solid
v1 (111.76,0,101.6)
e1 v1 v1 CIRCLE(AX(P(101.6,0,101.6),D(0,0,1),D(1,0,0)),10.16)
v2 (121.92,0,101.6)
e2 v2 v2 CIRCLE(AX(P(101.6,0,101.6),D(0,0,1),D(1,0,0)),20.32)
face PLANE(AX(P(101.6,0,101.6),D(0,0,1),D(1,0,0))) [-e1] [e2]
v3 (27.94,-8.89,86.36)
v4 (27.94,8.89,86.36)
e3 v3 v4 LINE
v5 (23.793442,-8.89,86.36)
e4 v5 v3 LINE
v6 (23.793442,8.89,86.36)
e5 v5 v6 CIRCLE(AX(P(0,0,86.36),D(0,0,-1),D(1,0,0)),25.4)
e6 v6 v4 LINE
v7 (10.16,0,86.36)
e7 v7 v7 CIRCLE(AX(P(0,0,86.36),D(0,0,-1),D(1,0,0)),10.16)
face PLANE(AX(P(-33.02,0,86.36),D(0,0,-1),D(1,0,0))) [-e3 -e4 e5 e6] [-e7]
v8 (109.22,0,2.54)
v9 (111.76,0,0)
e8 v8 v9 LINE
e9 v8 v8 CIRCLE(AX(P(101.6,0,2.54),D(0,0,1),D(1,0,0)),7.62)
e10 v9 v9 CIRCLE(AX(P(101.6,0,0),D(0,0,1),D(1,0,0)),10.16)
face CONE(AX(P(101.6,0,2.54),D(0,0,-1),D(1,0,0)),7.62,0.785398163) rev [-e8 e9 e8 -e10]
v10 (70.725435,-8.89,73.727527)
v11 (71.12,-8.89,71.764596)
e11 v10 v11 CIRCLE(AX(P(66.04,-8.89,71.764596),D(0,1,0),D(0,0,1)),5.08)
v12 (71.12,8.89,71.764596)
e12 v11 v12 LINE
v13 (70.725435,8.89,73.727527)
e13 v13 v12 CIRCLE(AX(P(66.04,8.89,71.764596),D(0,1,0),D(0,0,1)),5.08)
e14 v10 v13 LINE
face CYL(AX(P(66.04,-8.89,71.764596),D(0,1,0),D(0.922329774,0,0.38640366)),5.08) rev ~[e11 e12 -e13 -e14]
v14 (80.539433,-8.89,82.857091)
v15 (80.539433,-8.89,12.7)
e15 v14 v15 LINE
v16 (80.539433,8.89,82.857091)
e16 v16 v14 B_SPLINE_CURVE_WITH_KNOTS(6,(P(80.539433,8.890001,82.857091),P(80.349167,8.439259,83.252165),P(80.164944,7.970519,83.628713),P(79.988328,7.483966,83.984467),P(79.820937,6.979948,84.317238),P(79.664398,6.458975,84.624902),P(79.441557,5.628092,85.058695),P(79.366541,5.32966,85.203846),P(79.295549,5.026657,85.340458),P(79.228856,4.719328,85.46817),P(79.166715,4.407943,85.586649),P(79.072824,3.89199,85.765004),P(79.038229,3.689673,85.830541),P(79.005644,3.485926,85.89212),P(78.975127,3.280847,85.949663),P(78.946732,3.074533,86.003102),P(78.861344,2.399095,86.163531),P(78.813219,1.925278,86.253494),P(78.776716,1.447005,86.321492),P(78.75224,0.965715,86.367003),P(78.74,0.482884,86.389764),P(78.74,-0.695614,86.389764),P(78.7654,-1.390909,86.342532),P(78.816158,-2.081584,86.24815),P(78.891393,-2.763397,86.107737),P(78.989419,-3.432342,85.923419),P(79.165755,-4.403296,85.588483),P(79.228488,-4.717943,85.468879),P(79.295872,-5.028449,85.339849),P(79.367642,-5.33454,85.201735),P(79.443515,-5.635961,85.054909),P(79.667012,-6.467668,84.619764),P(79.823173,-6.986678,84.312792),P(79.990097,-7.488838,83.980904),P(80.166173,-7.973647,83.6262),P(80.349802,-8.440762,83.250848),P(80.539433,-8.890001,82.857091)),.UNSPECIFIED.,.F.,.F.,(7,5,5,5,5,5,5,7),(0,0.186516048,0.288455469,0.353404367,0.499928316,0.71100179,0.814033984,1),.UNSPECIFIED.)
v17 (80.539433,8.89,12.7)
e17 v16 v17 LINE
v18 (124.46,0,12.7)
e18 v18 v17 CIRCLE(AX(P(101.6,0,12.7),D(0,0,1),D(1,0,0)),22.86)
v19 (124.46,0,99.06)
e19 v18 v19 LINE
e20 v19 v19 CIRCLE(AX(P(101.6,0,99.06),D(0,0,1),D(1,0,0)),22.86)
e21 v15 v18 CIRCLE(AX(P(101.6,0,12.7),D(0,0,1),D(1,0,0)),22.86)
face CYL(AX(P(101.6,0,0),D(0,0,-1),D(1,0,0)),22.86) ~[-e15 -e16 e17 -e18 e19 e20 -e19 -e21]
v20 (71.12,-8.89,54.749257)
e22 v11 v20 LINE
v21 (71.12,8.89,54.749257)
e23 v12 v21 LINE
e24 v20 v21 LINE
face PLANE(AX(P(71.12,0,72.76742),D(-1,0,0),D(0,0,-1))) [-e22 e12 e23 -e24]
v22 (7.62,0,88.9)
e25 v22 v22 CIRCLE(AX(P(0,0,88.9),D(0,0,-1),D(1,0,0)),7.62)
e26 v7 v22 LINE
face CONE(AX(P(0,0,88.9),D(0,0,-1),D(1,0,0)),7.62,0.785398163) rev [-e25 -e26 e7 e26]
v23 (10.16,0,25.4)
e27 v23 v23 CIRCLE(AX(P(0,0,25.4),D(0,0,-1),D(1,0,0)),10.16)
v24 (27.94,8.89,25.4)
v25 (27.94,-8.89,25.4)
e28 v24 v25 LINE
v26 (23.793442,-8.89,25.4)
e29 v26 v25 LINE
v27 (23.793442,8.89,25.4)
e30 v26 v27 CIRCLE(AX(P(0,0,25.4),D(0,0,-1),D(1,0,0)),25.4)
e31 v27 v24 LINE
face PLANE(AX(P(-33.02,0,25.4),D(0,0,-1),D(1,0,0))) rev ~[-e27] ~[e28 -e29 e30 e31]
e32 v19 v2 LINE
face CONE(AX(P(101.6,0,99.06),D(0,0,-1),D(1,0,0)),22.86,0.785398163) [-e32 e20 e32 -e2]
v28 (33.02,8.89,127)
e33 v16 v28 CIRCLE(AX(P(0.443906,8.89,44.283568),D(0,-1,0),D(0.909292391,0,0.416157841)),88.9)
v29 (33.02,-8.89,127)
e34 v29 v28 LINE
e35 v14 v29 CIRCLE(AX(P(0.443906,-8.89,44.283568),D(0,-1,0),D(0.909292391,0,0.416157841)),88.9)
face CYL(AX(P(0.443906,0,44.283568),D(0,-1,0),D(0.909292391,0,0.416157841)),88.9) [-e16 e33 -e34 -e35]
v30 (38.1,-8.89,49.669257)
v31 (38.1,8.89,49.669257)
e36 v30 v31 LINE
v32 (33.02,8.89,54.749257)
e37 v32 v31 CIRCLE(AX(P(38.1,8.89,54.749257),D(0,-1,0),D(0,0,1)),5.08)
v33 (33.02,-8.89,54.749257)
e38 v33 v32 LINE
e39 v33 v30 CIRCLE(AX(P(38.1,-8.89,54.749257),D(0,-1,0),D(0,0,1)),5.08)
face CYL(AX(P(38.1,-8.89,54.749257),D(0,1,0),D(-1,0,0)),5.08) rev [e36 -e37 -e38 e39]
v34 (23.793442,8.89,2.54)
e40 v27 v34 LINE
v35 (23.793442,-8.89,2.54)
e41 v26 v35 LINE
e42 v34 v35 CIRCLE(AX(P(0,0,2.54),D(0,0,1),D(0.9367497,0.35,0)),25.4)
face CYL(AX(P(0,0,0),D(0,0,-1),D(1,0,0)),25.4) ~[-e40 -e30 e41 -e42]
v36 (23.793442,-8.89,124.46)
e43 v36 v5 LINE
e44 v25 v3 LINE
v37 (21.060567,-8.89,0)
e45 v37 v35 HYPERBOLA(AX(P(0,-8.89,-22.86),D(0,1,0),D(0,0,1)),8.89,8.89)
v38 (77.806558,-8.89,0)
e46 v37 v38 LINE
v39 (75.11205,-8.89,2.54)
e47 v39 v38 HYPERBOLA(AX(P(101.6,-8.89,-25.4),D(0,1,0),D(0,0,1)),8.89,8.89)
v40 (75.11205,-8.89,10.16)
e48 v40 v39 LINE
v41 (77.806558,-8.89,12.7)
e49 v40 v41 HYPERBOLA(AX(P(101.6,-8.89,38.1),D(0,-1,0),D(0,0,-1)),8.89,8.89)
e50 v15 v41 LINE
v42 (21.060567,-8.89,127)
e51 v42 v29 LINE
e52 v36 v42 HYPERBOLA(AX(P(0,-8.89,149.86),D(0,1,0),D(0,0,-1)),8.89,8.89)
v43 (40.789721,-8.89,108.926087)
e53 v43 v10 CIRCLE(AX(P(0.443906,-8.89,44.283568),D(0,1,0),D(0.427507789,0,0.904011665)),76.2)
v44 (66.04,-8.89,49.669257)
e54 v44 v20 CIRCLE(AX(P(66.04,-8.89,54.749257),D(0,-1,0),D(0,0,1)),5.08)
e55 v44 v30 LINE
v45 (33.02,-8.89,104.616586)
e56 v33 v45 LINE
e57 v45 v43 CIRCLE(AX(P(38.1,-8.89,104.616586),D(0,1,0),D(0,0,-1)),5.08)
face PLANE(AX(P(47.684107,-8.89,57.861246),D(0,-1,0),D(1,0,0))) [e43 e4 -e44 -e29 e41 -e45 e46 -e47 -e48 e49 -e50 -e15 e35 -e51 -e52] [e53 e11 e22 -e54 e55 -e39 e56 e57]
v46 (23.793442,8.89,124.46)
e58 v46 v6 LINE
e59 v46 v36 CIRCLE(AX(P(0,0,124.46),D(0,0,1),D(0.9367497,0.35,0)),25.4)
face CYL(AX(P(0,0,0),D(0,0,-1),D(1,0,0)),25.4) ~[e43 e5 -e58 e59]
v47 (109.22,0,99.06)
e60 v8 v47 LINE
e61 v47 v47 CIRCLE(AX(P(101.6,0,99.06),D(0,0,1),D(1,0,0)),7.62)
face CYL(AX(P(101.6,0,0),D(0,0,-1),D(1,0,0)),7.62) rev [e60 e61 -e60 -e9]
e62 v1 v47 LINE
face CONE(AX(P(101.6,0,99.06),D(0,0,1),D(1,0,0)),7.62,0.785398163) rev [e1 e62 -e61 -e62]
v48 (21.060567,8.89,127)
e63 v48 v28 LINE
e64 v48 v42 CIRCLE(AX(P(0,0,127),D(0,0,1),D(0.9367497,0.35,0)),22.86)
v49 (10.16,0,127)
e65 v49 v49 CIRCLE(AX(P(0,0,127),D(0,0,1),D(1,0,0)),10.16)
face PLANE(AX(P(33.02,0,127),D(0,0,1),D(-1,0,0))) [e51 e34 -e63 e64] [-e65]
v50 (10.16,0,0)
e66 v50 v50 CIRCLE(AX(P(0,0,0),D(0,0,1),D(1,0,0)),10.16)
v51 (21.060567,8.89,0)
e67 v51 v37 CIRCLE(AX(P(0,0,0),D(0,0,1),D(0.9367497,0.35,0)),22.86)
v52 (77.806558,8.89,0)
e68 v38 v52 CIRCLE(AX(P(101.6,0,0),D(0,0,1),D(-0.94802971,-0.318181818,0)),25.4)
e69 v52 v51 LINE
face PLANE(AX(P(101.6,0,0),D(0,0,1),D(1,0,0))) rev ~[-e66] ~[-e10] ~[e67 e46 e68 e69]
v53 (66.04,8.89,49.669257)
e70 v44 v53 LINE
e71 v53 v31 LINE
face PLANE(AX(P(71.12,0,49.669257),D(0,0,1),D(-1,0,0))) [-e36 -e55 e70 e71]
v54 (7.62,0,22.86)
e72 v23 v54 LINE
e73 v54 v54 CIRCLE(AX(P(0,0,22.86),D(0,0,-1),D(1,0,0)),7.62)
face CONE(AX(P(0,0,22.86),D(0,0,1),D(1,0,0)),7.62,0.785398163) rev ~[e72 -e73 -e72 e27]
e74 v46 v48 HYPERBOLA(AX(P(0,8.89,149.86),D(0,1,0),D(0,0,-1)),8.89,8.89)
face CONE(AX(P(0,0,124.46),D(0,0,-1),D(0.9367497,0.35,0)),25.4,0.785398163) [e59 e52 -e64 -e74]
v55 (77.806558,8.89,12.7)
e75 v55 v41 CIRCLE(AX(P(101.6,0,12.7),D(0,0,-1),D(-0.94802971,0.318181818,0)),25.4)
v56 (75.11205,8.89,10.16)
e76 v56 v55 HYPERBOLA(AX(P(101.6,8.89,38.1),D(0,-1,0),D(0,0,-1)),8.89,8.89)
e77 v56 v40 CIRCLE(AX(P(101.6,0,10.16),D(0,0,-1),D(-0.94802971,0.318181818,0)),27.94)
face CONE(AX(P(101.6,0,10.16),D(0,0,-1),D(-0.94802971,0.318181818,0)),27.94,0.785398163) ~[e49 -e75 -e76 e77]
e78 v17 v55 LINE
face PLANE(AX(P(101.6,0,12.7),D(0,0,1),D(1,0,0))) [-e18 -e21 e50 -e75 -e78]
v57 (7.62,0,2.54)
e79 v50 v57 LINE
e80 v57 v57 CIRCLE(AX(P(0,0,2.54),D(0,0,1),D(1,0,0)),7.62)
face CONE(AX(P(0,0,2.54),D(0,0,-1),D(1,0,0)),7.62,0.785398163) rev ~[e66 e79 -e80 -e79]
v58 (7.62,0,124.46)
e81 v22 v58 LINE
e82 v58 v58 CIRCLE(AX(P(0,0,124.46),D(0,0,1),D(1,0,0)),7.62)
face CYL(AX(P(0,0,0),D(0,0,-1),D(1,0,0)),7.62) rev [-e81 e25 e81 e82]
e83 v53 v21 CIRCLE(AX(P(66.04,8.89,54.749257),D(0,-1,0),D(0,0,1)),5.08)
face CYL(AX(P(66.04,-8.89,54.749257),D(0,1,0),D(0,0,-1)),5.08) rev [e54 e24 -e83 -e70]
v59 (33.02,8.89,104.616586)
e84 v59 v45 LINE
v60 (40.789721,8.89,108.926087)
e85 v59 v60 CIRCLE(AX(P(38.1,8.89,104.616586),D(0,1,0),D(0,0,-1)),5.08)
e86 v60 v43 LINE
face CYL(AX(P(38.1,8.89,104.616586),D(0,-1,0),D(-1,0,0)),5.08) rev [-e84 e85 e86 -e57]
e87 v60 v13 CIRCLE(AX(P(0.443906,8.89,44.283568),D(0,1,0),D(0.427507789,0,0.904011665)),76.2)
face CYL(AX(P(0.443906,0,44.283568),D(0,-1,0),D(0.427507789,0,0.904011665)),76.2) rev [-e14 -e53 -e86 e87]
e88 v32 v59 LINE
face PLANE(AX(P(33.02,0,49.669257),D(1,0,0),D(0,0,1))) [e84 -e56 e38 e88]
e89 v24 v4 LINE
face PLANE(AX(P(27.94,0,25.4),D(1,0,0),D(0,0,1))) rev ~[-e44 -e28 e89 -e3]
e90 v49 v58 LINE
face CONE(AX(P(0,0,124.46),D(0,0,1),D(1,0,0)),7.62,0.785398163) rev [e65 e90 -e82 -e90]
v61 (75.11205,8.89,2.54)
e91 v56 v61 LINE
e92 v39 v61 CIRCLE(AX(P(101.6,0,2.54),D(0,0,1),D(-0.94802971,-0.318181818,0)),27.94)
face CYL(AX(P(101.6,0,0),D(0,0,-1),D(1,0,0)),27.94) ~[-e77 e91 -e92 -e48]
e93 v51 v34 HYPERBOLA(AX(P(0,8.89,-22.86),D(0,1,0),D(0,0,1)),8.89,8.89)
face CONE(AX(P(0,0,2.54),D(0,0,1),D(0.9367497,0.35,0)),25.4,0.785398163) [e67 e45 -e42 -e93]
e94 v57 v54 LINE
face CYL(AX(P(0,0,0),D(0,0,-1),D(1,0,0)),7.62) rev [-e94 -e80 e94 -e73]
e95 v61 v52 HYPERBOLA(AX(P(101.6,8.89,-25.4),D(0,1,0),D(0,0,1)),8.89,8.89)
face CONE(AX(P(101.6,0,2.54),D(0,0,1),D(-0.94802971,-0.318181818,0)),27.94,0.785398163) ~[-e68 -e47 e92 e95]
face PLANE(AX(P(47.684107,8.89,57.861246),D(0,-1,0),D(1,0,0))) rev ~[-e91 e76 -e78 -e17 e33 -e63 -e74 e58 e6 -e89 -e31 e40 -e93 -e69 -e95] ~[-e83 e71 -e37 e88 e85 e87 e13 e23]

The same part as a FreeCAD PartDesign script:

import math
import FreeCAD as App
import Part
import Sketcher
from FreeCAD import Vector
Q = App.Units.Quantity


def edges_at(feature, points):
    """Names of the edges that pass closest to the given points."""
    edges = feature.Shape.Edges
    near = lambda p: min(range(len(edges)), key=lambda i: edges[i].distToShape(Part.Vertex(*p))[0])
    return sorted({f"Edge{near(p) + 1}" for p in points})

doc = App.newDocument("Part")
body = doc.addObject("PartDesign::Body", "Body")

# Sketch on XY plane
sketch1 = doc.addObject("Sketcher::SketchObject", "Sketch")
body.addObject(sketch1)
sketch1.AttachmentSupport = (doc.XY_Plane, [""])
sketch1.MapMode = "FlatFace"
sketch1.addGeometry(Part.Circle(Vector(0, 0, 0), Vector(0, 0, 1), 25.4), False)
sketch1.addGeometry(Part.Circle(Vector(0, 0, 0), Vector(0, 0, 1), 7.62), False)
sketch1.addConstraint(Sketcher.Constraint("Coincident", 0, 3, -1, 1))
sketch1.addConstraint(Sketcher.Constraint("Coincident", 1, 3, -1, 1))
sketch1.addConstraint(Sketcher.Constraint("Diameter", 0, Q("2 in")))
sketch1.addConstraint(Sketcher.Constraint("Diameter", 1, Q("0.6 in")))
pad1 = doc.addObject("PartDesign::Pad", "Pad")
body.addObject(pad1)
pad1.Profile = sketch1
pad1.Length = Q("5 in")
body2 = doc.addObject("PartDesign::Body", "Body001")

# Sketch on XY plane
sketch2 = doc.addObject("Sketcher::SketchObject", "Sketch001")
body2.addObject(sketch2)
sketch2.AttachmentSupport = (doc.getObject("XY_Plane001"), [""])
sketch2.MapMode = "FlatFace"
sketch2.addGeometry(Part.Circle(Vector(101.6, 0, 0), Vector(0, 0, 1), 22.86), False)
sketch2.addGeometry(Part.Circle(Vector(101.6, 0, 0), Vector(0, 0, 1), 7.62), False)
sketch2.addConstraint(Sketcher.Constraint("Coincident", 1, 3, 0, 3))
sketch2.addConstraint(Sketcher.Constraint("PointOnObject", 0, 3, -1))
sketch2.addConstraint(Sketcher.Constraint("Diameter", 0, Q("1.8 in")))
sketch2.addConstraint(Sketcher.Constraint("Diameter", 1, Q("0.6 in")))
sketch2.addConstraint(Sketcher.Constraint("DistanceX", -1, 1, 0, 3, Q("4 in")))
pad2 = doc.addObject("PartDesign::Pad", "Pad001")
body2.addObject(pad2)
pad2.Profile = sketch2
pad2.Length = Q("4 in")
body.AllowCompound = True
doc.recompute()

boolean = doc.addObject("PartDesign::Boolean", "Boolean")
body.addObject(boolean)
boolean.Type = "Fuse"
boolean.addObjects([body2])

# Sketch on XZ plane
sketch3 = doc.addObject("Sketcher::SketchObject", "Sketch002")
body.addObject(sketch3)
sketch3.AttachmentSupport = (doc.XZ_Plane, [""])
sketch3.MapMode = "FlatFace"
sketch3.addGeometry(Part.LineSegment(Vector(20.32, 127, 0), Vector(20.32, 0, 0)), False)
sketch3.addGeometry(Part.LineSegment(Vector(20.32, 0, 0), Vector(81.28, 0, 0)), False)
sketch3.addGeometry(Part.LineSegment(Vector(81.28, 0, 0), Vector(81.28, 81.28, 0)), False)
sketch3.addGeometry(Part.ArcOfCircle(Part.Circle(Vector(0.443906, 44.283568, 0), Vector(0, 0, 1), 88.9), math.radians(24.592252), math.radians(68.504063)), False)
sketch3.addGeometry(Part.LineSegment(Vector(33.02, 127, 0), Vector(20.32, 127, 0)), False)
sketch3.addGeometry(Part.LineSegment(Vector(33.02, 49.669257, 0), Vector(33.02, 113.169257, 0)), False)
sketch3.addGeometry(Part.ArcOfCircle(Part.Circle(Vector(0.443906, 44.283568, 0), Vector(0, 0, 1), 76.2), math.radians(21.950401), math.radians(64.690498)), False)
sketch3.addGeometry(Part.LineSegment(Vector(71.12, 72.76742, 0), Vector(71.12, 49.669257, 0)), False)
sketch3.addGeometry(Part.LineSegment(Vector(71.12, 49.669257, 0), Vector(33.02, 49.669257, 0)), False)
sketch3.addConstraint(Sketcher.Constraint("Coincident", 0, 2, 1, 1))
sketch3.addConstraint(Sketcher.Constraint("Coincident", 1, 2, 2, 1))
sketch3.addConstraint(Sketcher.Constraint("Coincident", 2, 2, 3, 1))
sketch3.addConstraint(Sketcher.Constraint("Coincident", 3, 2, 4, 1))
sketch3.addConstraint(Sketcher.Constraint("Coincident", 4, 2, 0, 1))
sketch3.addConstraint(Sketcher.Constraint("Coincident", 5, 2, 6, 2))
sketch3.addConstraint(Sketcher.Constraint("Coincident", 6, 1, 7, 1))
sketch3.addConstraint(Sketcher.Constraint("Coincident", 7, 2, 8, 1))
sketch3.addConstraint(Sketcher.Constraint("Coincident", 8, 2, 5, 1))
sketch3.addConstraint(Sketcher.Constraint("Vertical", 0))
sketch3.addConstraint(Sketcher.Constraint("Horizontal", 1))
sketch3.addConstraint(Sketcher.Constraint("Vertical", 2))
sketch3.addConstraint(Sketcher.Constraint("Horizontal", 4))
sketch3.addConstraint(Sketcher.Constraint("Vertical", 5))
sketch3.addConstraint(Sketcher.Constraint("Vertical", 7))
sketch3.addConstraint(Sketcher.Constraint("Horizontal", 8))
sketch3.addConstraint(Sketcher.Constraint("Coincident", 6, 3, 3, 3))
sketch3.addConstraint(Sketcher.Constraint("PointOnObject", 0, 2, -1))
sketch3.addConstraint(Sketcher.Constraint("Vertical", 3, 2, 5, 2))
sketch3.addConstraint(Sketcher.Constraint("Radius", 6, Q("3 in")))
sketch3.addConstraint(Sketcher.Constraint("Radius", 3, Q("3.5 in")))
sketch3.addConstraint(Sketcher.Constraint("DistanceY", 0, 2, 0, 1, Q("5 in")))
sketch3.addConstraint(Sketcher.Constraint("DistanceX", 1, 1, 1, 2, Q("2.4 in")))
sketch3.addConstraint(Sketcher.Constraint("DistanceX", 4, 2, 4, 1, Q("0.5 in")))
sketch3.addConstraint(Sketcher.Constraint("DistanceX", 8, 2, 8, 1, Q("1.5 in")))
sketch3.addConstraint(Sketcher.Constraint("DistanceY", 2, 1, 2, 2, Q("3.2 in")))
sketch3.addConstraint(Sketcher.Constraint("DistanceY", 5, 1, 5, 2, Q("2.5 in")))
sketch3.addConstraint(Sketcher.Constraint("DistanceX", -1, 1, 0, 2, Q("0.8 in")))
pad3 = doc.addObject("PartDesign::Pad", "Pad002")
body.addObject(pad3)
pad3.Profile = sketch3
pad3.Length = Q("0.7 in")
pad3.Midplane = True

# Sketch on XZ plane
sketch4 = doc.addObject("Sketcher::SketchObject", "Sketch003")
body.addObject(sketch4)
sketch4.AttachmentSupport = (doc.XZ_Plane, [""])
sketch4.MapMode = "FlatFace"
sketch4.addGeometry(Part.LineSegment(Vector(-33.02, 86.36, 0), Vector(-33.02, 25.4, 0)), False)
sketch4.addGeometry(Part.LineSegment(Vector(-33.02, 25.4, 0), Vector(27.94, 25.4, 0)), False)
sketch4.addGeometry(Part.LineSegment(Vector(27.94, 25.4, 0), Vector(27.94, 86.36, 0)), False)
sketch4.addGeometry(Part.LineSegment(Vector(27.94, 86.36, 0), Vector(-33.02, 86.36, 0)), False)
sketch4.addConstraint(Sketcher.Constraint("Coincident", 0, 2, 1, 1))
sketch4.addConstraint(Sketcher.Constraint("Coincident", 1, 2, 2, 1))
sketch4.addConstraint(Sketcher.Constraint("Coincident", 2, 2, 3, 1))
sketch4.addConstraint(Sketcher.Constraint("Coincident", 3, 2, 0, 1))
sketch4.addConstraint(Sketcher.Constraint("Vertical", 0))
sketch4.addConstraint(Sketcher.Constraint("Horizontal", 1))
sketch4.addConstraint(Sketcher.Constraint("Vertical", 2))
sketch4.addConstraint(Sketcher.Constraint("Horizontal", 3))
sketch4.addConstraint(Sketcher.Constraint("Equal", 3, 0))
sketch4.addConstraint(Sketcher.Constraint("DistanceX", 1, 1, 1, 2, Q("2.4 in")))
sketch4.addConstraint(Sketcher.Constraint("DistanceY", -1, 1, 0, 2, Q("1 in")))
sketch4.addConstraint(Sketcher.Constraint("DistanceX", 0, 2, -1, 1, Q("1.3 in")))
pocket1 = doc.addObject("PartDesign::Pocket", "Pocket")
body.addObject(pocket1)
pocket1.Profile = sketch4
pocket1.Length = Q("4 in")
pocket1.Midplane = True
doc.recompute()

fillet = doc.addObject("PartDesign::Fillet", "Fillet")
body.addObject(fillet)
fillet.Base = (pocket1, edges_at(pocket1, [
    (33.02, 0, 113.169),
    (33.02, 0, 49.669),
    (71.12, 0, 49.669),
    (71.12, 0, 72.767),
]))
fillet.Radius = Q("0.2 in")
doc.recompute()

chamfer = doc.addObject("PartDesign::Chamfer", "Chamfer")
body.addObject(chamfer)
chamfer.Base = (fillet, edges_at(fillet, [
    (-25.4, 0, 127),
    (-7.62, 0, 127),
    (-7.62, 0, 25.4),
    (-25.4, 0, 0),
    (-7.62, 0, 86.36),
    (-7.62, 0, 0),
]))
chamfer.Size = Q("0.1 in")

# Sketch on XY plane
sketch5 = doc.addObject("Sketcher::SketchObject", "Sketch004")
body.addObject(sketch5)
sketch5.AttachmentSupport = (doc.XY_Plane, [""])
sketch5.MapMode = "FlatFace"
sketch5.addGeometry(Part.Circle(Vector(101.6, 0, 0), Vector(0, 0, 1), 27.94), False)
sketch5.addGeometry(Part.Circle(Vector(101.6, 0, 0), Vector(0, 0, 1), 22.86), False)
sketch5.addConstraint(Sketcher.Constraint("Coincident", 1, 3, 0, 3))
sketch5.addConstraint(Sketcher.Constraint("PointOnObject", 0, 3, -1))
sketch5.addConstraint(Sketcher.Constraint("Diameter", 0, Q("2.2 in")))
sketch5.addConstraint(Sketcher.Constraint("Diameter", 1, Q("1.8 in")))
sketch5.addConstraint(Sketcher.Constraint("DistanceX", -1, 1, 0, 3, Q("4 in")))
pad4 = doc.addObject("PartDesign::Pad", "Pad003")
body.addObject(pad4)
pad4.Profile = sketch5
pad4.Length = Q("0.5 in")
doc.recompute()

chamfer2 = doc.addObject("PartDesign::Chamfer", "Chamfer001")
body.addObject(chamfer2)
chamfer2.Base = (pad4, edges_at(pad4, [
    (93.98, 0, 0),
    (129.54, 0, 0),
    (93.98, 0, 101.6),
    (129.54, 0, 12.7),
    (78.74, 0, 101.6),
]))
chamfer2.Size = Q("0.1 in")

doc.recompute()
